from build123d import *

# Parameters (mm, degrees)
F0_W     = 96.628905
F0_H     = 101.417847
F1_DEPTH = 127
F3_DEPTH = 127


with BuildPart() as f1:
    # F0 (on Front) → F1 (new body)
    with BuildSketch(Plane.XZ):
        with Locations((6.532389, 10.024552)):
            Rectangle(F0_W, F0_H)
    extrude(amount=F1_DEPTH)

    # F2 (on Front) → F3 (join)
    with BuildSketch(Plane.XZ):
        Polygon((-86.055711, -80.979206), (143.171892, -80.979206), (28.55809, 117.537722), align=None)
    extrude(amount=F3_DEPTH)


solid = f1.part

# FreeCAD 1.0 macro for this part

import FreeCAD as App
import Part
import Sketcher
Q = App.Units.Quantity


def add_polygon(sketch, points):
    """Adds a closed chain of lines whose ends are joined by coincident constraints."""
    first, n = sketch.GeometryCount, len(points)
    for a, b in zip(points, points[1:] + points[:1]):
        sketch.addGeometry(Part.LineSegment(App.Vector(*a, 0), App.Vector(*b, 0)), False)
    for i in range(n):
        sketch.addConstraint(Sketcher.Constraint("Coincident", first + i, 2, first + (i + 1) % n, 1))

doc = App.newDocument("Part")
body = doc.addObject("PartDesign::Body", "Body")

# Sketch on XZ plane
sketch1 = body.newObject("Sketcher::SketchObject", "Sketch")
sketch1.AttachmentSupport = (doc.getObject("XZ_Plane"), [""])
sketch1.MapMode = "FlatFace"
add_polygon(sketch1, [(-41.782063, 60.733475), (-41.782063, -40.684371), (54.846841, -40.684371), (54.846841, 60.733475)])  # lines 0-3
sketch1.addConstraint([
    Sketcher.Constraint("Vertical", 0),
    Sketcher.Constraint("Horizontal", 1),
    Sketcher.Constraint("Vertical", 2),
    Sketcher.Constraint("Horizontal", 3),
    Sketcher.Constraint("DistanceX", 1, 1, 1, 2, 96.628905),
    Sketcher.Constraint("DistanceY", 0, 2, 0, 1, 101.417847),
    Sketcher.Constraint("DistanceY", 0, 2, -1, 1, 40.684371),
    Sketcher.Constraint("DistanceX", -1, 1, 1, 2, 54.846841),
])
pad1 = body.newObject("PartDesign::Pad", "Pad")
pad1.Profile = sketch1
pad1.Length = Q("5 in")

# Sketch on XZ plane
sketch2 = body.newObject("Sketcher::SketchObject", "Sketch001")
sketch2.AttachmentSupport = (doc.getObject("XZ_Plane"), [""])
sketch2.MapMode = "FlatFace"
add_polygon(sketch2, [(-86.055711, -80.979206), (143.171892, -80.979206), (28.55809, 117.537722)])  # lines 0-2
sketch2.addConstraint([
    Sketcher.Constraint("Horizontal", 0),
    Sketcher.Constraint("Equal", 1, 2),
    Sketcher.Constraint("Angle", 1, Q("120 deg")),
    Sketcher.Constraint("DistanceX", 2, 2, 1, 2, 114.613801),
    Sketcher.Constraint("DistanceX", -1, 1, 1, 2, 28.55809),
    Sketcher.Constraint("DistanceY", 0, 2, -1, 1, 80.979206),
])
pad2 = body.newObject("PartDesign::Pad", "Pad001")
pad2.Profile = sketch2
pad2.Length = Q("5 in")

doc.recompute()
